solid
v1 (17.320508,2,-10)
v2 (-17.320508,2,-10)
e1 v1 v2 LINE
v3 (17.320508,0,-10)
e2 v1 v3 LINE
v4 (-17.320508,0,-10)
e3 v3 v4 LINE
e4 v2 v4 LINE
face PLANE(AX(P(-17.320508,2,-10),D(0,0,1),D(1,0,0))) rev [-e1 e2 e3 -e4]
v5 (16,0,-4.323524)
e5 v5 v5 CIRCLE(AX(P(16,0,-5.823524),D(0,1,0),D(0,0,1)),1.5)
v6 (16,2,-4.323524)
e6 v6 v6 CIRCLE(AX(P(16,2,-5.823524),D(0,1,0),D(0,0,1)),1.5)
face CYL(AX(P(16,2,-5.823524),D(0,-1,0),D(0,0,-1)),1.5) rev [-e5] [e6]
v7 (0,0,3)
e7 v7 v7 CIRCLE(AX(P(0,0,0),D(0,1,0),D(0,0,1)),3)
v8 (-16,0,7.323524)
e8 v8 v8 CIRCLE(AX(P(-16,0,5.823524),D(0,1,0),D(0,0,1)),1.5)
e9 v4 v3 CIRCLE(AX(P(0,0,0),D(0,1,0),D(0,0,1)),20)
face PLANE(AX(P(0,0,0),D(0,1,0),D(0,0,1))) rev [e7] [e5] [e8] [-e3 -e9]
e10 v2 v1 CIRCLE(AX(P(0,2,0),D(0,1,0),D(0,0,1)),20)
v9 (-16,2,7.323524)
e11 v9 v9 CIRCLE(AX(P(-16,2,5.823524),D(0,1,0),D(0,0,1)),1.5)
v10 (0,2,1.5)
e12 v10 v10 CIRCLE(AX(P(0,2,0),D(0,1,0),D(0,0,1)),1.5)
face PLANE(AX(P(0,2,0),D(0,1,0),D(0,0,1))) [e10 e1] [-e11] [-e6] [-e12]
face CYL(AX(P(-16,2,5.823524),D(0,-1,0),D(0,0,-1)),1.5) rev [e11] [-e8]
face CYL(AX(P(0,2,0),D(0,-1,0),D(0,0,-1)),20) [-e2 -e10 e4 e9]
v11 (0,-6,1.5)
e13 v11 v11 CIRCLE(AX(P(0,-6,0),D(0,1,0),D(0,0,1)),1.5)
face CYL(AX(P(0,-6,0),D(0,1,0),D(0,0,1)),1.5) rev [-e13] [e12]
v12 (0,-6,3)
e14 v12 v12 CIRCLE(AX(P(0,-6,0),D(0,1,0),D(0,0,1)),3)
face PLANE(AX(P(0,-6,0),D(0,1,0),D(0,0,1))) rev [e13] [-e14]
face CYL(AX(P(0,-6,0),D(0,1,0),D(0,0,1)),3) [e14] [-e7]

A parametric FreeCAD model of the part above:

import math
import FreeCAD as App
import Part
import Sketcher
from FreeCAD import Vector
Q = App.Units.Quantity

doc = App.newDocument("Part")
body = doc.addObject("PartDesign::Body", "Body")

sketch1 = doc.addObject("Sketcher::SketchObject", "Sketch")
body.addObject(sketch1)
sketch1.AttachmentSupport = (doc.XZ_Plane, [""])
sketch1.MapMode = "FlatFace"
sketch1.addGeometry([
    Part.LineSegment(Vector(17.3, -10, 0), Vector(-17.3, -10, 0)),
    Part.ArcOfCircle(Part.Circle(Vector(0, 0, 0), Vector(0, 0, 1), 20), math.radians(-30), math.radians(210)),
    Part.Circle(Vector(-16, 5.8, 0), Vector(0, 0, 1), 1.5),
    Part.Circle(Vector(16, -5.8, 0), Vector(0, 0, 1), 1.5),
], False)
sketch1.addConstraint([
    Sketcher.Constraint("Coincident", 0, 1, 1, 1),
    Sketcher.Constraint("Coincident", 1, 2, 0, 2),
    Sketcher.Constraint("Horizontal", 0),
    Sketcher.Constraint("Coincident", 1, 3, -1, 1),
    Sketcher.Constraint("Equal", 2, 3),
    Sketcher.Constraint("Symmetric", 2, 3, 3, 3, -1, 1),
    Sketcher.Constraint("Diameter", 2, Q("3 mm")),
    Sketcher.Constraint("Radius", 1, Q("20 mm")),
    Sketcher.Constraint("DistanceX", 2, 3, -1, 1, Q("16 mm")),
    Sketcher.Constraint("DistanceY", 0, 1, -1, 1, Q("10 mm")),
    Sketcher.Constraint("DistanceY", -1, 1, 2, 3, Q("5.823524 mm")),
])
pad1 = doc.addObject("PartDesign::Pad", "Pad")
body.addObject(pad1)
pad1.Profile = sketch1
pad1.Length = 2
pad1.Reversed = True

sketch2 = doc.addObject("Sketcher::SketchObject", "Sketch001")
body.addObject(sketch2)
sketch2.AttachmentSupport = (doc.XZ_Plane, [""])
sketch2.MapMode = "FlatFace"
sketch2.addGeometry([
    Part.Circle(Vector(0, 0, 0), Vector(0, 0, 1), 3),
    Part.Circle(Vector(0, 0, 0), Vector(0, 0, 1), 1.5),
], False)
sketch2.addConstraint([
    Sketcher.Constraint("Coincident", 0, 3, -1, 1),
    Sketcher.Constraint("Coincident", 1, 3, -1, 1),
    Sketcher.Constraint("Diameter", 0, Q("6 mm")),
    Sketcher.Constraint("Diameter", 1, Q("3 mm")),
])
pad2 = doc.addObject("PartDesign::Pad", "Pad001")
body.addObject(pad2)
pad2.Profile = sketch2
pad2.Length = 6

sketch3 = doc.addObject("Sketcher::SketchObject", "Sketch002")
body.addObject(sketch3)
sketch3.AttachmentSupport = (doc.XZ_Plane, [""])
sketch3.MapMode = "FlatFace"
sketch3.AttachmentOffset = App.Placement(Vector(0, 0, -6), App.Rotation())
sketch3.addGeometry(Part.Circle(Vector(0, 0, 0), Vector(0, 0, 1), 1.5), False)
sketch3.addConstraint([
    Sketcher.Constraint("Coincident", 0, 3, -1, 1),
    Sketcher.Constraint("Diameter", 0, Q("3 mm")),
])
pocket1 = doc.addObject("PartDesign::Pocket", "Pocket")
body.addObject(pocket1)
pocket1.Profile = sketch3
pocket1.Length = 6
pocket1.Reversed = True

doc.recompute()
